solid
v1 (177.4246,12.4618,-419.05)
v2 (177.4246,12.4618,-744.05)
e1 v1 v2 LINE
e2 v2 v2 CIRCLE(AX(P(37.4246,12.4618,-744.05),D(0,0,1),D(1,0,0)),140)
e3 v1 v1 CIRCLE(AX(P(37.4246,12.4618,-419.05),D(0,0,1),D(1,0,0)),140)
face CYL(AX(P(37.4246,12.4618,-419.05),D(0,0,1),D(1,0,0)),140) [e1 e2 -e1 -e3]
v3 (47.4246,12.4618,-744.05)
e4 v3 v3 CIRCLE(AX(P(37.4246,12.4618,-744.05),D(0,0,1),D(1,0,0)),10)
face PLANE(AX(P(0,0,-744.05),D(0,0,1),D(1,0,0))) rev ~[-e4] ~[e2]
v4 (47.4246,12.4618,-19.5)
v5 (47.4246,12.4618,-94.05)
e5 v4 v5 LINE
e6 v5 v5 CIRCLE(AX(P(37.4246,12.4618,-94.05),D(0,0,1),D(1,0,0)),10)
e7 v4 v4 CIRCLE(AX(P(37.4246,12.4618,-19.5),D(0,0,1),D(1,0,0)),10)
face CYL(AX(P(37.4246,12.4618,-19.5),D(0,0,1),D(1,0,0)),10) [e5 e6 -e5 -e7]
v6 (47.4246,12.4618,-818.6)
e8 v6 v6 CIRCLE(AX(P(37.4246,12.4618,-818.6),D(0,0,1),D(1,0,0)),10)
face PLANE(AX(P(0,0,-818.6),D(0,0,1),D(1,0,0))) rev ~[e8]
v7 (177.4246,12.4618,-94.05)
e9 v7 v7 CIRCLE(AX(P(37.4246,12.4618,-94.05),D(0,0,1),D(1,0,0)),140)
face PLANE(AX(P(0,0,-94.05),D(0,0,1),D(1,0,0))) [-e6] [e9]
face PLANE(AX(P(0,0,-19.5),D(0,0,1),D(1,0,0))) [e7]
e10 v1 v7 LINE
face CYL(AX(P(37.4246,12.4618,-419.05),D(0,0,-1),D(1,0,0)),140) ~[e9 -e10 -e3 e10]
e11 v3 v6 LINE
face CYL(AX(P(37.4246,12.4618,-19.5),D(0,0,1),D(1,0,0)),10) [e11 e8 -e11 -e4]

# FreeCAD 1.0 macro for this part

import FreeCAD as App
import Part
import Sketcher

doc = App.newDocument("Part")
params = doc.addObject("Spreadsheet::Sheet", "Params")
for row, (alias, value) in enumerate([
    ("sketch1_diameter", "20 mm"),
    ("pad1_length", "799.1 mm"),
    ("sketch2_diameter", "280 mm"),
    ("sketch2_diameter2", "20 mm"),
    ("pad2_length", "650 mm"),
], start=1):
    params.set(f"A{row}", alias)
    params.set(f"B{row}", "=" + value)
    params.setAlias(f"B{row}", alias)

body = doc.addObject("PartDesign::Body", "Body")

# Sketch on XY plane
sketch1 = body.newObject("Sketcher::SketchObject", "Sketch")
sketch1.AttachmentSupport = (doc.getObject("XY_Plane"), [""])
sketch1.MapMode = "FlatFace"
sketch1.AttachmentOffset = App.Placement(App.Vector(0, 0, -19.5), App.Rotation())
sketch1.addGeometry(Part.Circle(App.Vector(37, 12, 0), App.Vector(0, 0, 1), 10), False)
sketch1.addConstraint([
    Sketcher.Constraint("Diameter", 0, 20.0),
    Sketcher.Constraint("DistanceX", -1, 1, 0, 3, 37.4246),
    Sketcher.Constraint("DistanceY", -1, 1, 0, 3, 12.4618),
])
sketch1.setExpression("Constraints[0]", "Params.sketch1_diameter")
pad1 = body.newObject("PartDesign::Pad", "Pad")
pad1.Profile = sketch1
pad1.setExpression("Length", "Params.pad1_length")
pad1.Reversed = True

# Sketch on XY plane
sketch2 = body.newObject("Sketcher::SketchObject", "Sketch001")
sketch2.AttachmentSupport = (doc.getObject("XY_Plane"), [""])
sketch2.MapMode = "FlatFace"
sketch2.AttachmentOffset = App.Placement(App.Vector(0, 0, -419.05), App.Rotation())
sketch2.addGeometry([
    Part.Circle(App.Vector(37, 12, 0), App.Vector(0, 0, 1), 140),
    Part.Circle(App.Vector(37, 12, 0), App.Vector(0, 0, 1), 10),
], False)
sketch2.addConstraint([
    Sketcher.Constraint("Coincident", 1, 3, 0, 3),
    Sketcher.Constraint("Diameter", 0, 280.0),
    Sketcher.Constraint("Diameter", 1, 20.0),
    Sketcher.Constraint("DistanceX", -1, 1, 0, 3, 37.4246),
    Sketcher.Constraint("DistanceY", -1, 1, 0, 3, 12.4618),
])
sketch2.setExpression("Constraints[1]", "Params.sketch2_diameter")
sketch2.setExpression("Constraints[2]", "Params.sketch2_diameter2")
pad2 = body.newObject("PartDesign::Pad", "Pad001")
pad2.Profile = sketch2
pad2.setExpression("Length", "Params.pad2_length")
pad2.Midplane = True

doc.recompute()
